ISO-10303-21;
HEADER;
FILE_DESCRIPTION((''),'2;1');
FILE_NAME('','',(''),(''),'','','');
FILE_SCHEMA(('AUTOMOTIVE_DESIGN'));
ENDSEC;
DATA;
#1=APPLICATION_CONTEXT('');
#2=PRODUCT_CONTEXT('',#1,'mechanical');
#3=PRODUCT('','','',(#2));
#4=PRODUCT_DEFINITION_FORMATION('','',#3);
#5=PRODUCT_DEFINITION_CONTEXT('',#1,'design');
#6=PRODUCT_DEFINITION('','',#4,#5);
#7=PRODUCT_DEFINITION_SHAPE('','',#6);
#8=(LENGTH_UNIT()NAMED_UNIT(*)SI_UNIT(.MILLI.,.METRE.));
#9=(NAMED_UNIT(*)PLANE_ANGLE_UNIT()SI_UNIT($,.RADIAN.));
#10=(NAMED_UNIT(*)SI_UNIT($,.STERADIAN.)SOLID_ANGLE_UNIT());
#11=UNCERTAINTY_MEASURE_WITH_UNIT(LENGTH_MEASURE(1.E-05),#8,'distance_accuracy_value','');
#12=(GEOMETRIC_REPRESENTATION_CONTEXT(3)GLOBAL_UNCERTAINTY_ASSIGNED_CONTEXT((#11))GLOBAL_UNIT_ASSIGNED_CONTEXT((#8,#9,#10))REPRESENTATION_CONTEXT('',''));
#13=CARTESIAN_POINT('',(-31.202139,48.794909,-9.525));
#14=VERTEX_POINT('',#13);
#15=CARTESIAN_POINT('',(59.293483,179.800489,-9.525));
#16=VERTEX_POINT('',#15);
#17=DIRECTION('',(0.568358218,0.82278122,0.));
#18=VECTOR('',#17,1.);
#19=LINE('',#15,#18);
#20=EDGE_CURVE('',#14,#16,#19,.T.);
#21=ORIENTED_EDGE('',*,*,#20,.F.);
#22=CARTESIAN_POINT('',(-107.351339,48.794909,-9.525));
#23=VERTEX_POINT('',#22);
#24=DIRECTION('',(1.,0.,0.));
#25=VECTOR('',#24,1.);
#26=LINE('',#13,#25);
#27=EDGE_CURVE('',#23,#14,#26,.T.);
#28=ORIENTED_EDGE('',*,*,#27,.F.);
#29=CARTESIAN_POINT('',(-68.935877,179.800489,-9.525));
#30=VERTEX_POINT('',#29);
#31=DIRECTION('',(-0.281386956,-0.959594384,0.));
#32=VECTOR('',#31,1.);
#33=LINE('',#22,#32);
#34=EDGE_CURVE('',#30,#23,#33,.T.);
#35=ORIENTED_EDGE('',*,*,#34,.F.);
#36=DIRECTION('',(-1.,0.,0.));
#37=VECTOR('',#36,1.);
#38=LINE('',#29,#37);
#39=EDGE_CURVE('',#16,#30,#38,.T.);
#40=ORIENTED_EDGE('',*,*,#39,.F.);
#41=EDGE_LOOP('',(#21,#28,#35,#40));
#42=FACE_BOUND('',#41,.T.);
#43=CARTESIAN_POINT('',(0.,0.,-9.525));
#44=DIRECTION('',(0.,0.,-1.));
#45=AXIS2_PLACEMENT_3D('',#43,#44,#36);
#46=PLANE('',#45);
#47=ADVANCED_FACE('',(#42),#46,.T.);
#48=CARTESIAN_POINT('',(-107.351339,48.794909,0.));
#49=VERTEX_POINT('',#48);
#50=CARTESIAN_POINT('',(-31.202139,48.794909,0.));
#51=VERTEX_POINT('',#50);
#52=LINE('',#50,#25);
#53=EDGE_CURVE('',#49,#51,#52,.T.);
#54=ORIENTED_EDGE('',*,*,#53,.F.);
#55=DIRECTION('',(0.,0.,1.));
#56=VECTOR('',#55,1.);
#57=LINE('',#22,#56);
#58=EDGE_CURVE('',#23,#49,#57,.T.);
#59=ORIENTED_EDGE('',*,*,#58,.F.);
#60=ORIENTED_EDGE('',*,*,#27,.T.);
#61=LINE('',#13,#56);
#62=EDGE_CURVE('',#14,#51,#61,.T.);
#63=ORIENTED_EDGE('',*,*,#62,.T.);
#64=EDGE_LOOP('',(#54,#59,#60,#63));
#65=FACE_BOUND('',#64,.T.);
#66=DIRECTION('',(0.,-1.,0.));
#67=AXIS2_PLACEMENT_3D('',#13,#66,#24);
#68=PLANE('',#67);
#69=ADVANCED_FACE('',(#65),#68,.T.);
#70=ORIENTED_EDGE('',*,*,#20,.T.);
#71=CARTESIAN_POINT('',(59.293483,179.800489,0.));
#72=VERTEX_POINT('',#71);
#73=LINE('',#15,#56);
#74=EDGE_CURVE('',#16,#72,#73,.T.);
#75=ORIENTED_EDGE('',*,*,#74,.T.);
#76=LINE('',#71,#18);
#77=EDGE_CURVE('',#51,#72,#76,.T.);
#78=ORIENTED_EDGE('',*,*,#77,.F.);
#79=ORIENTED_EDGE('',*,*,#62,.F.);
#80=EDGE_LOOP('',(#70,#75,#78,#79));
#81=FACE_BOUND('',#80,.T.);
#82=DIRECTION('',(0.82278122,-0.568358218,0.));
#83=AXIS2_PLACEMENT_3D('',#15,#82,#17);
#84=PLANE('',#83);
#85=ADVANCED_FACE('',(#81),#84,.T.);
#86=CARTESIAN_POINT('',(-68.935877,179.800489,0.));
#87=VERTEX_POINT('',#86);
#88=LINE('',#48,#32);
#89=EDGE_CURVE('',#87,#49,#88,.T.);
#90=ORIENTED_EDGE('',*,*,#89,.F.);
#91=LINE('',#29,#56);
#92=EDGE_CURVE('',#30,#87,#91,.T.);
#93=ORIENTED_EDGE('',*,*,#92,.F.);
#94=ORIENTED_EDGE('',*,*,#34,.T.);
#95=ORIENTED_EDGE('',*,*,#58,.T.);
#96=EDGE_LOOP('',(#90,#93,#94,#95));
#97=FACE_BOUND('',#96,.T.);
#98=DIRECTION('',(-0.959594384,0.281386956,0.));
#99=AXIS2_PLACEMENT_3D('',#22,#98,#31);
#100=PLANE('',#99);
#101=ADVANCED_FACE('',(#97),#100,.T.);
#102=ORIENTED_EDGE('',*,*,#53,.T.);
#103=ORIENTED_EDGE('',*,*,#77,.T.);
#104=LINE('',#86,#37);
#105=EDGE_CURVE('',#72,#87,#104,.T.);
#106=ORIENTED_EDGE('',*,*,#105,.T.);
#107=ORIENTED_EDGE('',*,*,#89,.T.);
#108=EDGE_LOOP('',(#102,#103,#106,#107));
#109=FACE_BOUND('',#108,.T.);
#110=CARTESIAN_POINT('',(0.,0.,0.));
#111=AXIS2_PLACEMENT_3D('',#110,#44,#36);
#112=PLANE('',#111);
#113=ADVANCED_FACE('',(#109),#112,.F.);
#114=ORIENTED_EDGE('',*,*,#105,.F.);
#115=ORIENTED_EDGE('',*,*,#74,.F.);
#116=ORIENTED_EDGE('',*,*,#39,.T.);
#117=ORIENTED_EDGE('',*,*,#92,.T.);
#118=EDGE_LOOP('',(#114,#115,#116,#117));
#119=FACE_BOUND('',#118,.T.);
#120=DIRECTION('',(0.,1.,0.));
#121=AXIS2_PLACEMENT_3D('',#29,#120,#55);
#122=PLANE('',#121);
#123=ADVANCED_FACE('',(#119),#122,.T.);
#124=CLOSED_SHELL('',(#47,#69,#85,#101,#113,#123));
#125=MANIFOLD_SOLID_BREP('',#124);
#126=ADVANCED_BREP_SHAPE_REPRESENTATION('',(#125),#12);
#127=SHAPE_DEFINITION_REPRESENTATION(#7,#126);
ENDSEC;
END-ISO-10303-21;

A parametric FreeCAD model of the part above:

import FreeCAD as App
import Part
import Sketcher
from FreeCAD import Vector
Q = App.Units.Quantity

doc = App.newDocument("Part")
body = doc.addObject("PartDesign::Body", "Body")

# Sketch on XY plane
sketch1 = body.newObject("Sketcher::SketchObject", "Sketch")
sketch1.AttachmentSupport = (doc.getObject("XY_Plane"), [""])
sketch1.MapMode = "FlatFace"
sketch1.addGeometry(Part.LineSegment(Vector(-69, 180, 0), Vector(-107, 49, 0)), False)
sketch1.addGeometry(Part.LineSegment(Vector(-107, 49, 0), Vector(-31, 49, 0)), False)
sketch1.addGeometry(Part.LineSegment(Vector(-31, 49, 0), Vector(59, 180, 0)), False)
sketch1.addGeometry(Part.LineSegment(Vector(59, 180, 0), Vector(-69, 180, 0)), False)
sketch1.addConstraint(Sketcher.Constraint("Coincident", 0, 2, 1, 1))
sketch1.addConstraint(Sketcher.Constraint("Coincident", 1, 2, 2, 1))
sketch1.addConstraint(Sketcher.Constraint("Coincident", 2, 2, 3, 1))
sketch1.addConstraint(Sketcher.Constraint("Coincident", 3, 2, 0, 1))
sketch1.addConstraint(Sketcher.Constraint("Horizontal", 1))
sketch1.addConstraint(Sketcher.Constraint("Horizontal", 3))
sketch1.addConstraint(Sketcher.Constraint("DistanceX", 1, 1, 1, 2, Q("2.998 in")))
sketch1.addConstraint(Sketcher.Constraint("DistanceX", 3, 2, 3, 1, Q("5.0484 in")))
sketch1.addConstraint(Sketcher.Constraint("DistanceY", 1, 2, 2, 2, Q("5.1577 in")))
sketch1.addConstraint(Sketcher.Constraint("Distance", 0, 136.521829))
sketch1.addConstraint(Sketcher.Constraint("DistanceX", 0, 2, -1, 1, 107.351339))
sketch1.addConstraint(Sketcher.Constraint("DistanceY", -1, 1, 0, 2, 48.794909))
pad1 = body.newObject("PartDesign::Pad", "Pad")
pad1.Profile = sketch1
pad1.Length = Q("0.375 in")
pad1.Reversed = True

doc.recompute()
